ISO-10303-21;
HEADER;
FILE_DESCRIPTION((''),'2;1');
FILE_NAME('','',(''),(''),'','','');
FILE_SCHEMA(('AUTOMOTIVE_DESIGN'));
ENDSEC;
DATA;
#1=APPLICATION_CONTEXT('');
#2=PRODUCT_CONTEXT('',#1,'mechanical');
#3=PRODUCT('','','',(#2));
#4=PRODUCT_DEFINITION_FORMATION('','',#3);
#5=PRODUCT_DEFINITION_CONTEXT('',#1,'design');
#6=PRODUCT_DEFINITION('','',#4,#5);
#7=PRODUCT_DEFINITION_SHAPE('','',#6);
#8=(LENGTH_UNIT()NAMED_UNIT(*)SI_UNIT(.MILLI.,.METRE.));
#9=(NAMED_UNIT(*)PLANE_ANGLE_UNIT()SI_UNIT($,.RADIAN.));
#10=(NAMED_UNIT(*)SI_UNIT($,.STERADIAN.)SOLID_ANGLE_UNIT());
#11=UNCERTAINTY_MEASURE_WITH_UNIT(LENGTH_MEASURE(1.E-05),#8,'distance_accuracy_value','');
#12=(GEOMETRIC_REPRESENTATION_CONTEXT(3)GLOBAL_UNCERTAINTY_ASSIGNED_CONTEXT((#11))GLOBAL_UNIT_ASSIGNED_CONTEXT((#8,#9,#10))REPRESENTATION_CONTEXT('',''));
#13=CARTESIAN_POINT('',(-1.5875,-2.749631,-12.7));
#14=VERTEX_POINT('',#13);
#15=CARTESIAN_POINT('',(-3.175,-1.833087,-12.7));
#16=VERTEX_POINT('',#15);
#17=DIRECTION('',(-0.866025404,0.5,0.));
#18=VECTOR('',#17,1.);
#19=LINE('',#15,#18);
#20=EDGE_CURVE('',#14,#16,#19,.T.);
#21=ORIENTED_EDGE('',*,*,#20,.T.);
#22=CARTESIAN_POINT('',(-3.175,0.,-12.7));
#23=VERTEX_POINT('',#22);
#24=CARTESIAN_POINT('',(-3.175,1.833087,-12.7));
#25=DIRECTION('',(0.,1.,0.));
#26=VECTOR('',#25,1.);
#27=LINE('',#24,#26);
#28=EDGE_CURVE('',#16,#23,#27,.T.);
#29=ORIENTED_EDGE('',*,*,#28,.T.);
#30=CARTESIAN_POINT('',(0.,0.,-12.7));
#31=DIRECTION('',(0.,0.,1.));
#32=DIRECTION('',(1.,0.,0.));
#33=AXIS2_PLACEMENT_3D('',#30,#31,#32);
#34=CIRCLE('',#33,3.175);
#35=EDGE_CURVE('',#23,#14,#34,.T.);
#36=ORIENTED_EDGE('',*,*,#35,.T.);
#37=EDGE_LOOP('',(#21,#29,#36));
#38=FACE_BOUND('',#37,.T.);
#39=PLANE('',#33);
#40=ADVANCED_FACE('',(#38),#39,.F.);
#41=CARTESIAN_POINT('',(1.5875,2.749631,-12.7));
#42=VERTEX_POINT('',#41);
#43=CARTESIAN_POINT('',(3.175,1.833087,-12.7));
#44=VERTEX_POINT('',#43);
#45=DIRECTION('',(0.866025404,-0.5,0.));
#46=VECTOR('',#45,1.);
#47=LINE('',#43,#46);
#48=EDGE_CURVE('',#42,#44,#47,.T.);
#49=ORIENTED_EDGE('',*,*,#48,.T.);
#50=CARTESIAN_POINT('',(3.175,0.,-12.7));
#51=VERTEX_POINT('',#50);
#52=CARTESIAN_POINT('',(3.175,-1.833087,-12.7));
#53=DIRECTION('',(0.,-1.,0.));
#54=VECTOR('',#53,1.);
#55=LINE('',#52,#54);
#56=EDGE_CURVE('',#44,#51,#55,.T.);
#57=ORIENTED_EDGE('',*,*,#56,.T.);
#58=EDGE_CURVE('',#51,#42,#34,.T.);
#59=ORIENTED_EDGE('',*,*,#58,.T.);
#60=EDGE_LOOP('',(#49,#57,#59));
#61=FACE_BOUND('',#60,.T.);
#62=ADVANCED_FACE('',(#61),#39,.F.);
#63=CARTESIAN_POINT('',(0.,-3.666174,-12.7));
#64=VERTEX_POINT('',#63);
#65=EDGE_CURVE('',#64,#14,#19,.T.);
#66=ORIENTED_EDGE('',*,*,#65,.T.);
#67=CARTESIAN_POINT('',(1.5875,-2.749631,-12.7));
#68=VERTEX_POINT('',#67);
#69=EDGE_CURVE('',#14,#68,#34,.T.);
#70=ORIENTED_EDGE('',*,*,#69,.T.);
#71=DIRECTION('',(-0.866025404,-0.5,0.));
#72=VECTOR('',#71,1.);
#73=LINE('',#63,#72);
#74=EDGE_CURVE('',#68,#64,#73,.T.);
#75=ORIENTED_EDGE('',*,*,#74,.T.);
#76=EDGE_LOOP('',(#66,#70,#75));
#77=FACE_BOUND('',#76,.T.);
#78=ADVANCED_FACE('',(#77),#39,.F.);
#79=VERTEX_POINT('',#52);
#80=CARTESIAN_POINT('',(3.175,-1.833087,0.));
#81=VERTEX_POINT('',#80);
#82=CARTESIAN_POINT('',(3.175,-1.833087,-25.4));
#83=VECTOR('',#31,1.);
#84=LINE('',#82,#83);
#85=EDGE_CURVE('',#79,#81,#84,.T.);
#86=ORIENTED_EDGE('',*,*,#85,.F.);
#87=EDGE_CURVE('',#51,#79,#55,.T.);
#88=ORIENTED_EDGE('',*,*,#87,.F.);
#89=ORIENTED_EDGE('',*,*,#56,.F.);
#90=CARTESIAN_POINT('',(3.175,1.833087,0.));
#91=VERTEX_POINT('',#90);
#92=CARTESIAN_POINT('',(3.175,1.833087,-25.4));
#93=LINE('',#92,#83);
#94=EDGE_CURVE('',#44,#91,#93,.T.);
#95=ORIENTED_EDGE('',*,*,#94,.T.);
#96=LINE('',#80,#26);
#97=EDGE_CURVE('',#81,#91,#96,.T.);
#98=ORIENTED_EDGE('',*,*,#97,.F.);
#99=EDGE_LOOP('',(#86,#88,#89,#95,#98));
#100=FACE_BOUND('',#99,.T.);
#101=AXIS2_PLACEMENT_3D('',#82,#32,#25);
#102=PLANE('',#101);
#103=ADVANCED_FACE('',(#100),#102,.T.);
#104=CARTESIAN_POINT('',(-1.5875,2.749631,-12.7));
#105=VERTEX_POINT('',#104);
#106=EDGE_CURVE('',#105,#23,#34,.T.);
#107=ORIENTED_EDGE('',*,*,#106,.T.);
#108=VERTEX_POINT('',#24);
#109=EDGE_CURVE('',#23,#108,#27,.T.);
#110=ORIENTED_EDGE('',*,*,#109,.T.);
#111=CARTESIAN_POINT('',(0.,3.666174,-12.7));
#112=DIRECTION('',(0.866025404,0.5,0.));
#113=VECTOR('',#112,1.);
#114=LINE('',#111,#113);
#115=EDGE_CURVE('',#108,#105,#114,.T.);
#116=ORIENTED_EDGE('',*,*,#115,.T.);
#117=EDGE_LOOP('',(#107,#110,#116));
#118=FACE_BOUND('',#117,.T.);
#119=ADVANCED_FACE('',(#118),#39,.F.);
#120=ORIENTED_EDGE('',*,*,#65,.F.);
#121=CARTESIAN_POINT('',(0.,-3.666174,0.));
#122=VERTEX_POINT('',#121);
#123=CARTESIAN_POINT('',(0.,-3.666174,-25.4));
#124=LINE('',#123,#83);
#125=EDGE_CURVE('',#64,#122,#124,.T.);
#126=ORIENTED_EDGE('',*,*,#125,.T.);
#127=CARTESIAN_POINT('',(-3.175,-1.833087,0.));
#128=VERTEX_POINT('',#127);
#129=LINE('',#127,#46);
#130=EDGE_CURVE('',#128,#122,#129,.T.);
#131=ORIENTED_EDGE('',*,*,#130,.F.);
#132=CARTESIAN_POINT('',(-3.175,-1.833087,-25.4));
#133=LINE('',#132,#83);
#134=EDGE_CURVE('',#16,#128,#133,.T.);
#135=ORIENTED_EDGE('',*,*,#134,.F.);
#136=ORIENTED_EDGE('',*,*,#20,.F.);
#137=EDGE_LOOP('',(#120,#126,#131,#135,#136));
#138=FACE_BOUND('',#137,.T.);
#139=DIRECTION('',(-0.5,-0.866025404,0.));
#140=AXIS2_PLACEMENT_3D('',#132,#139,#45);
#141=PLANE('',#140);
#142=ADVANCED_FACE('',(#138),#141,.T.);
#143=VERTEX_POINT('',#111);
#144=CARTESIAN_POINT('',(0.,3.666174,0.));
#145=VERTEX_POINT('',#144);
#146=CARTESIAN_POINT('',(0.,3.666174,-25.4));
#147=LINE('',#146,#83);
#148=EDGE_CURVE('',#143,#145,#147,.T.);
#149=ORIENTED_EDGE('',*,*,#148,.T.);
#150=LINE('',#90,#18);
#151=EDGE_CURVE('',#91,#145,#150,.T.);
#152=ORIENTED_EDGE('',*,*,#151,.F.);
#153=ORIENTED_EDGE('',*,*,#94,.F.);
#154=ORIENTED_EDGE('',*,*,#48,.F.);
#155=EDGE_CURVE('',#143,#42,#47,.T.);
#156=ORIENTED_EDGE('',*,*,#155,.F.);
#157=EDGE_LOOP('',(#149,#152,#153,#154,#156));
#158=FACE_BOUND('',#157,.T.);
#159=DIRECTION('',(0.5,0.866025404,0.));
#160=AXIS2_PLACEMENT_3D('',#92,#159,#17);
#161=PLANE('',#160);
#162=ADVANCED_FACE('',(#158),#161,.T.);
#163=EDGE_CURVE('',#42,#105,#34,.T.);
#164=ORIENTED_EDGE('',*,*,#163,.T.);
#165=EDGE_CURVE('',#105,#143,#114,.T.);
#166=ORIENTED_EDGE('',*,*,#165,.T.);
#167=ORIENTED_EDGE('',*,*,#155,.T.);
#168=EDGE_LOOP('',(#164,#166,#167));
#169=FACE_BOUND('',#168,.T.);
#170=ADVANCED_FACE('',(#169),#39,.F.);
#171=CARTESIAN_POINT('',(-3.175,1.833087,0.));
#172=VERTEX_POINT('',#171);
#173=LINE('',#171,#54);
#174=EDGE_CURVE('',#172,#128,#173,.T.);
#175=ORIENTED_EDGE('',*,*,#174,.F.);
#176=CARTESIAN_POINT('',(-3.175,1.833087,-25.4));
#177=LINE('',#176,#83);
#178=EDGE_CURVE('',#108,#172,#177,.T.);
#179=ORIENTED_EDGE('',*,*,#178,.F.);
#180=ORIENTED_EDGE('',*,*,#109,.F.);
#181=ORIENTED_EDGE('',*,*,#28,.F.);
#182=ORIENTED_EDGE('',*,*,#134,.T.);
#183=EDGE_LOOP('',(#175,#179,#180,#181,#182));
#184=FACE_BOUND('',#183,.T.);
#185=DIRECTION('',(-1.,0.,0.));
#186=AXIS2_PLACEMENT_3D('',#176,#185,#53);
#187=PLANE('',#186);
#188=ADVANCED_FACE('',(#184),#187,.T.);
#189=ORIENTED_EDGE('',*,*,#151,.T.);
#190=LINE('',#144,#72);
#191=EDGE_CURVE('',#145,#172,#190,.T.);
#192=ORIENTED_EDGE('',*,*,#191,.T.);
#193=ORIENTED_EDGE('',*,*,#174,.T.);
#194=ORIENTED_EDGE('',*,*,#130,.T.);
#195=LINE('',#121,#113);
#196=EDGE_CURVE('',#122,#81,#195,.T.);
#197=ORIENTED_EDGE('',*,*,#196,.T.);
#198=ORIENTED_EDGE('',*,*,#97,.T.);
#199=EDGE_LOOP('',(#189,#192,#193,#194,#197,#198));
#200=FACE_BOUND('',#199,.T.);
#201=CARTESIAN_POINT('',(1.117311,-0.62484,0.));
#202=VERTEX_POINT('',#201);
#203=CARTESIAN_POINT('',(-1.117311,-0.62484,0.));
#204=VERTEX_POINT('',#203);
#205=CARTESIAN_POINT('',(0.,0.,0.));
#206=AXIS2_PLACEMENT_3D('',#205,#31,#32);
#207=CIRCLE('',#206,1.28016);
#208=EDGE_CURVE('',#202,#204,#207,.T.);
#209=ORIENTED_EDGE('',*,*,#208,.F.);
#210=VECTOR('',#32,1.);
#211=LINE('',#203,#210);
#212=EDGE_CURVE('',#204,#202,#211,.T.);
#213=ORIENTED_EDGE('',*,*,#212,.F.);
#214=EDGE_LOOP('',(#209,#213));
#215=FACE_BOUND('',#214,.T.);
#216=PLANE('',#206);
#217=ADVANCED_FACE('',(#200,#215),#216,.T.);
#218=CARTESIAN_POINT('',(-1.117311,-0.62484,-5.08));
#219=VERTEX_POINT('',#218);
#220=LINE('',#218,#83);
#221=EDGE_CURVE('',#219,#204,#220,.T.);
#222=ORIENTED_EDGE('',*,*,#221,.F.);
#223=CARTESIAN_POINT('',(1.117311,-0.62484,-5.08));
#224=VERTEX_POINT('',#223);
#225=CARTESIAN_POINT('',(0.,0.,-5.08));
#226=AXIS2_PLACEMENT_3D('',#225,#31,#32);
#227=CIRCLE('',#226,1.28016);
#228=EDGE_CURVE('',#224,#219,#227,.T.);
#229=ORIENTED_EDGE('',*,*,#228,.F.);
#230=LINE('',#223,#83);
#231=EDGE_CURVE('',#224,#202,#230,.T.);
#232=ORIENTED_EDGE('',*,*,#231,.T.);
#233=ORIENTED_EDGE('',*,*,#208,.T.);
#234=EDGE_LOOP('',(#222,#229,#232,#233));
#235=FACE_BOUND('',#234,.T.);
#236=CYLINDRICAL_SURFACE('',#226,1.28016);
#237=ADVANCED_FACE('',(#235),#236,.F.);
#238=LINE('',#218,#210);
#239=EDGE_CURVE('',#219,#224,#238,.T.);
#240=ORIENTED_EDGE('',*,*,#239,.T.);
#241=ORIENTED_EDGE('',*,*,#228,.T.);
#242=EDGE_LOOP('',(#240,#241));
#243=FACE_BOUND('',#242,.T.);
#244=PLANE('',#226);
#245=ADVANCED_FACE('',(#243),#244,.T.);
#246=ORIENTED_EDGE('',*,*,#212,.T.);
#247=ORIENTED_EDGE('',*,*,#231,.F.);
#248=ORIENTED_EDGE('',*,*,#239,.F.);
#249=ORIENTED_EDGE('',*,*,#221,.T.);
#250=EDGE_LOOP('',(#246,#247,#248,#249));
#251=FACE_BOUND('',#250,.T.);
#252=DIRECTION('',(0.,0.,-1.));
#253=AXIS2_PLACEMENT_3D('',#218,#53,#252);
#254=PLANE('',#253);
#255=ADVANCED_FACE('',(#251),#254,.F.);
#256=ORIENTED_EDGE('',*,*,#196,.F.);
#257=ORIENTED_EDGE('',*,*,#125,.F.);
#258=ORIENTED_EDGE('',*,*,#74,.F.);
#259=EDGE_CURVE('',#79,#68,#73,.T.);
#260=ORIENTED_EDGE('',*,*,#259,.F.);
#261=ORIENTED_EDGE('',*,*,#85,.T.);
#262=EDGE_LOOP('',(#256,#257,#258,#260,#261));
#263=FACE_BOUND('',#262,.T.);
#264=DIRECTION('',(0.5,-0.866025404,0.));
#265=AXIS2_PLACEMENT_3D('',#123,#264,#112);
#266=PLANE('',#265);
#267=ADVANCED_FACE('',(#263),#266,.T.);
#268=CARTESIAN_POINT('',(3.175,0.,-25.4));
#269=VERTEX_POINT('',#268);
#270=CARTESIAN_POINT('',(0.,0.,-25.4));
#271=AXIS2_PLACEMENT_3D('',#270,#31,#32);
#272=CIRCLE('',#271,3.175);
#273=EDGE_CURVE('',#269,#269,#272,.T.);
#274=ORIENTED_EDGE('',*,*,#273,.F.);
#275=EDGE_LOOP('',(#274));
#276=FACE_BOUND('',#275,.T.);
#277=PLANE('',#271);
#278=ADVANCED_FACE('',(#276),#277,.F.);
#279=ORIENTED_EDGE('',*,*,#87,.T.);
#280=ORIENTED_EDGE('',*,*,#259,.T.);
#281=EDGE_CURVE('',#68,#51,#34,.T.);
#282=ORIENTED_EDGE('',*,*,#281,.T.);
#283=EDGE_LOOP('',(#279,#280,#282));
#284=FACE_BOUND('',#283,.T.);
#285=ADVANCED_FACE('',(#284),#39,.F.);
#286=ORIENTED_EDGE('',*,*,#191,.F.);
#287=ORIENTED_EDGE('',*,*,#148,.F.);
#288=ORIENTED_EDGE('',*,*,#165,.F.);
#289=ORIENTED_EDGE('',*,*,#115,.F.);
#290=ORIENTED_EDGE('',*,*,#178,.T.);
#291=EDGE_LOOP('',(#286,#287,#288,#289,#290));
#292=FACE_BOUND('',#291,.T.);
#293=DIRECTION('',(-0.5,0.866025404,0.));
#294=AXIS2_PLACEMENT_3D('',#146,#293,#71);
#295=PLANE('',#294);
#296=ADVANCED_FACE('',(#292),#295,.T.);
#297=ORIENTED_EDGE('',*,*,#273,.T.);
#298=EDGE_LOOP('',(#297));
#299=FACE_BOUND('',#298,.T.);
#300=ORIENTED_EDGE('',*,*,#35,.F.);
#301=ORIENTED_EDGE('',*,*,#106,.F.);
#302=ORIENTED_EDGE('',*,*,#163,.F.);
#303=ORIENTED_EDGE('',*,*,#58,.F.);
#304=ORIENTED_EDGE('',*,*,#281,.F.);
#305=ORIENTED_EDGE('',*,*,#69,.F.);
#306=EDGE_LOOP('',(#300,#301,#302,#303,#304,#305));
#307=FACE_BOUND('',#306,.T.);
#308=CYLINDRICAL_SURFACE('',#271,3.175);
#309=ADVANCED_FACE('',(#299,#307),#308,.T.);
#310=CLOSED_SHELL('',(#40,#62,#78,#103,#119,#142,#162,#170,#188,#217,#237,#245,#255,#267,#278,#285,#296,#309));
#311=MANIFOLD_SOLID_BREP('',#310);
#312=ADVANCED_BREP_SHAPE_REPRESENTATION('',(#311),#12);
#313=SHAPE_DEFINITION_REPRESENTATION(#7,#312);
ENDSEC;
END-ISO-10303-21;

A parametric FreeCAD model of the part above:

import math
import FreeCAD as App
import Part
import Sketcher

V = App.Vector
Q = App.Units.Quantity


def add_polygon(sketch, points):
    """Adds a closed chain of lines whose ends are joined by coincident constraints."""
    first, n = sketch.GeometryCount, len(points)
    for a, b in zip(points, points[1:] + points[:1]):
        sketch.addGeometry(Part.LineSegment(App.Vector(*a, 0), App.Vector(*b, 0)), False)
    for i in range(n):
        sketch.addConstraint(Sketcher.Constraint("Coincident", first + i, 2, first + (i + 1) % n, 1))

doc = App.newDocument("Part")
body = doc.addObject("PartDesign::Body", "Body")

sketch1 = body.newObject("Sketcher::SketchObject", "Sketch")
sketch1.AttachmentSupport = (doc.getObject("XY_Plane"), [""])
sketch1.MapMode = "FlatFace"
add_polygon(sketch1, [(0, 3.7), (-3.2, 1.8), (-3.2, -1.8), (0, -3.7), (3.2, -1.8), (3.2, 1.8)])
sketch1.addConstraint([
    Sketcher.Constraint("Vertical", 1),
    Sketcher.Constraint("Vertical", 4),
    Sketcher.Constraint("Symmetric", 0, 2, 3, 2, -1, 1),
    Sketcher.Constraint("Symmetric", 2, 2, 5, 2, -1, 1),
    Sketcher.Constraint("PointOnObject", 2, 2, -2),
    Sketcher.Constraint("Parallel", 2, 5),
    Sketcher.Constraint("Horizontal", 1, 2, 3, 2),
    Sketcher.Constraint("Angle", 0, Q("-150 deg")),
    Sketcher.Constraint("DistanceX", 1, 2, 3, 2, Q("0.25 in")),
    Sketcher.Constraint("DistanceY", 1, 2, 1, 1, 3.666174),
])
pad1 = body.newObject("PartDesign::Pad", "Pad")
pad1.Profile = sketch1
pad1.Length = Q("1 in")
pad1.Reversed = True

sketch2 = body.newObject("Sketcher::SketchObject", "Sketch001")
sketch2.AttachmentSupport = (doc.getObject("XY_Plane"), [""])
sketch2.MapMode = "FlatFace"
sketch2.addGeometry([
    Part.LineSegment(V(-1.1, -0.6, 0), V(1.1, -0.6, 0)),
    Part.ArcOfCircle(Part.Circle(V(0, 0, 0), V(0, 0, 1), 1.3), math.radians(-29), math.radians(209)),
], False)
sketch2.addConstraint([
    Sketcher.Constraint("Coincident", 0, 1, 1, 2),
    Sketcher.Constraint("Coincident", 1, 1, 0, 2),
    Sketcher.Constraint("Horizontal", 0),
    Sketcher.Constraint("Coincident", 1, 3, -1, 1),
    Sketcher.Constraint("Radius", 1, Q("0.0504 in")),
    Sketcher.Constraint("DistanceY", 0, 1, -1, 1, Q("0.0246 in")),
])
pocket1 = body.newObject("PartDesign::Pocket", "Pocket")
pocket1.Profile = sketch2
pocket1.Length = Q("0.2 in")

sketch3 = body.newObject("Sketcher::SketchObject", "Sketch002")
sketch3.AttachmentSupport = (doc.getObject("XY_Plane"), [""])
sketch3.MapMode = "FlatFace"
sketch3.AttachmentOffset = App.Placement(V(0, 0, -0.5 * 25.4), App.Rotation())
add_polygon(sketch3, [(-6.9, 7.4), (-6.9, -7.4), (6.9, -7.4), (6.9, 7.4)])
sketch3.addGeometry(Part.Circle(V(0, 0, 0), V(0, 0, 1), 3.2), False)
sketch3.addConstraint([
    Sketcher.Constraint("Vertical", 0),
    Sketcher.Constraint("Horizontal", 1),
    Sketcher.Constraint("Vertical", 2),
    Sketcher.Constraint("Horizontal", 3),
    Sketcher.Constraint("Coincident", 4, 3, -1, 1),
    Sketcher.Constraint("Symmetric", 0, 2, 2, 2, -1, 1),
    Sketcher.Constraint("Diameter", 4, Q("0.25 in")),
    Sketcher.Constraint("DistanceX", 1, 1, 1, 2, 13.788),
    Sketcher.Constraint("DistanceY", 0, 2, 0, 1, 14.77),
])
pocket2 = body.newObject("PartDesign::Pocket", "Pocket001")
pocket2.Profile = sketch3
pocket2.Type = "ThroughAll"

doc.recompute()
